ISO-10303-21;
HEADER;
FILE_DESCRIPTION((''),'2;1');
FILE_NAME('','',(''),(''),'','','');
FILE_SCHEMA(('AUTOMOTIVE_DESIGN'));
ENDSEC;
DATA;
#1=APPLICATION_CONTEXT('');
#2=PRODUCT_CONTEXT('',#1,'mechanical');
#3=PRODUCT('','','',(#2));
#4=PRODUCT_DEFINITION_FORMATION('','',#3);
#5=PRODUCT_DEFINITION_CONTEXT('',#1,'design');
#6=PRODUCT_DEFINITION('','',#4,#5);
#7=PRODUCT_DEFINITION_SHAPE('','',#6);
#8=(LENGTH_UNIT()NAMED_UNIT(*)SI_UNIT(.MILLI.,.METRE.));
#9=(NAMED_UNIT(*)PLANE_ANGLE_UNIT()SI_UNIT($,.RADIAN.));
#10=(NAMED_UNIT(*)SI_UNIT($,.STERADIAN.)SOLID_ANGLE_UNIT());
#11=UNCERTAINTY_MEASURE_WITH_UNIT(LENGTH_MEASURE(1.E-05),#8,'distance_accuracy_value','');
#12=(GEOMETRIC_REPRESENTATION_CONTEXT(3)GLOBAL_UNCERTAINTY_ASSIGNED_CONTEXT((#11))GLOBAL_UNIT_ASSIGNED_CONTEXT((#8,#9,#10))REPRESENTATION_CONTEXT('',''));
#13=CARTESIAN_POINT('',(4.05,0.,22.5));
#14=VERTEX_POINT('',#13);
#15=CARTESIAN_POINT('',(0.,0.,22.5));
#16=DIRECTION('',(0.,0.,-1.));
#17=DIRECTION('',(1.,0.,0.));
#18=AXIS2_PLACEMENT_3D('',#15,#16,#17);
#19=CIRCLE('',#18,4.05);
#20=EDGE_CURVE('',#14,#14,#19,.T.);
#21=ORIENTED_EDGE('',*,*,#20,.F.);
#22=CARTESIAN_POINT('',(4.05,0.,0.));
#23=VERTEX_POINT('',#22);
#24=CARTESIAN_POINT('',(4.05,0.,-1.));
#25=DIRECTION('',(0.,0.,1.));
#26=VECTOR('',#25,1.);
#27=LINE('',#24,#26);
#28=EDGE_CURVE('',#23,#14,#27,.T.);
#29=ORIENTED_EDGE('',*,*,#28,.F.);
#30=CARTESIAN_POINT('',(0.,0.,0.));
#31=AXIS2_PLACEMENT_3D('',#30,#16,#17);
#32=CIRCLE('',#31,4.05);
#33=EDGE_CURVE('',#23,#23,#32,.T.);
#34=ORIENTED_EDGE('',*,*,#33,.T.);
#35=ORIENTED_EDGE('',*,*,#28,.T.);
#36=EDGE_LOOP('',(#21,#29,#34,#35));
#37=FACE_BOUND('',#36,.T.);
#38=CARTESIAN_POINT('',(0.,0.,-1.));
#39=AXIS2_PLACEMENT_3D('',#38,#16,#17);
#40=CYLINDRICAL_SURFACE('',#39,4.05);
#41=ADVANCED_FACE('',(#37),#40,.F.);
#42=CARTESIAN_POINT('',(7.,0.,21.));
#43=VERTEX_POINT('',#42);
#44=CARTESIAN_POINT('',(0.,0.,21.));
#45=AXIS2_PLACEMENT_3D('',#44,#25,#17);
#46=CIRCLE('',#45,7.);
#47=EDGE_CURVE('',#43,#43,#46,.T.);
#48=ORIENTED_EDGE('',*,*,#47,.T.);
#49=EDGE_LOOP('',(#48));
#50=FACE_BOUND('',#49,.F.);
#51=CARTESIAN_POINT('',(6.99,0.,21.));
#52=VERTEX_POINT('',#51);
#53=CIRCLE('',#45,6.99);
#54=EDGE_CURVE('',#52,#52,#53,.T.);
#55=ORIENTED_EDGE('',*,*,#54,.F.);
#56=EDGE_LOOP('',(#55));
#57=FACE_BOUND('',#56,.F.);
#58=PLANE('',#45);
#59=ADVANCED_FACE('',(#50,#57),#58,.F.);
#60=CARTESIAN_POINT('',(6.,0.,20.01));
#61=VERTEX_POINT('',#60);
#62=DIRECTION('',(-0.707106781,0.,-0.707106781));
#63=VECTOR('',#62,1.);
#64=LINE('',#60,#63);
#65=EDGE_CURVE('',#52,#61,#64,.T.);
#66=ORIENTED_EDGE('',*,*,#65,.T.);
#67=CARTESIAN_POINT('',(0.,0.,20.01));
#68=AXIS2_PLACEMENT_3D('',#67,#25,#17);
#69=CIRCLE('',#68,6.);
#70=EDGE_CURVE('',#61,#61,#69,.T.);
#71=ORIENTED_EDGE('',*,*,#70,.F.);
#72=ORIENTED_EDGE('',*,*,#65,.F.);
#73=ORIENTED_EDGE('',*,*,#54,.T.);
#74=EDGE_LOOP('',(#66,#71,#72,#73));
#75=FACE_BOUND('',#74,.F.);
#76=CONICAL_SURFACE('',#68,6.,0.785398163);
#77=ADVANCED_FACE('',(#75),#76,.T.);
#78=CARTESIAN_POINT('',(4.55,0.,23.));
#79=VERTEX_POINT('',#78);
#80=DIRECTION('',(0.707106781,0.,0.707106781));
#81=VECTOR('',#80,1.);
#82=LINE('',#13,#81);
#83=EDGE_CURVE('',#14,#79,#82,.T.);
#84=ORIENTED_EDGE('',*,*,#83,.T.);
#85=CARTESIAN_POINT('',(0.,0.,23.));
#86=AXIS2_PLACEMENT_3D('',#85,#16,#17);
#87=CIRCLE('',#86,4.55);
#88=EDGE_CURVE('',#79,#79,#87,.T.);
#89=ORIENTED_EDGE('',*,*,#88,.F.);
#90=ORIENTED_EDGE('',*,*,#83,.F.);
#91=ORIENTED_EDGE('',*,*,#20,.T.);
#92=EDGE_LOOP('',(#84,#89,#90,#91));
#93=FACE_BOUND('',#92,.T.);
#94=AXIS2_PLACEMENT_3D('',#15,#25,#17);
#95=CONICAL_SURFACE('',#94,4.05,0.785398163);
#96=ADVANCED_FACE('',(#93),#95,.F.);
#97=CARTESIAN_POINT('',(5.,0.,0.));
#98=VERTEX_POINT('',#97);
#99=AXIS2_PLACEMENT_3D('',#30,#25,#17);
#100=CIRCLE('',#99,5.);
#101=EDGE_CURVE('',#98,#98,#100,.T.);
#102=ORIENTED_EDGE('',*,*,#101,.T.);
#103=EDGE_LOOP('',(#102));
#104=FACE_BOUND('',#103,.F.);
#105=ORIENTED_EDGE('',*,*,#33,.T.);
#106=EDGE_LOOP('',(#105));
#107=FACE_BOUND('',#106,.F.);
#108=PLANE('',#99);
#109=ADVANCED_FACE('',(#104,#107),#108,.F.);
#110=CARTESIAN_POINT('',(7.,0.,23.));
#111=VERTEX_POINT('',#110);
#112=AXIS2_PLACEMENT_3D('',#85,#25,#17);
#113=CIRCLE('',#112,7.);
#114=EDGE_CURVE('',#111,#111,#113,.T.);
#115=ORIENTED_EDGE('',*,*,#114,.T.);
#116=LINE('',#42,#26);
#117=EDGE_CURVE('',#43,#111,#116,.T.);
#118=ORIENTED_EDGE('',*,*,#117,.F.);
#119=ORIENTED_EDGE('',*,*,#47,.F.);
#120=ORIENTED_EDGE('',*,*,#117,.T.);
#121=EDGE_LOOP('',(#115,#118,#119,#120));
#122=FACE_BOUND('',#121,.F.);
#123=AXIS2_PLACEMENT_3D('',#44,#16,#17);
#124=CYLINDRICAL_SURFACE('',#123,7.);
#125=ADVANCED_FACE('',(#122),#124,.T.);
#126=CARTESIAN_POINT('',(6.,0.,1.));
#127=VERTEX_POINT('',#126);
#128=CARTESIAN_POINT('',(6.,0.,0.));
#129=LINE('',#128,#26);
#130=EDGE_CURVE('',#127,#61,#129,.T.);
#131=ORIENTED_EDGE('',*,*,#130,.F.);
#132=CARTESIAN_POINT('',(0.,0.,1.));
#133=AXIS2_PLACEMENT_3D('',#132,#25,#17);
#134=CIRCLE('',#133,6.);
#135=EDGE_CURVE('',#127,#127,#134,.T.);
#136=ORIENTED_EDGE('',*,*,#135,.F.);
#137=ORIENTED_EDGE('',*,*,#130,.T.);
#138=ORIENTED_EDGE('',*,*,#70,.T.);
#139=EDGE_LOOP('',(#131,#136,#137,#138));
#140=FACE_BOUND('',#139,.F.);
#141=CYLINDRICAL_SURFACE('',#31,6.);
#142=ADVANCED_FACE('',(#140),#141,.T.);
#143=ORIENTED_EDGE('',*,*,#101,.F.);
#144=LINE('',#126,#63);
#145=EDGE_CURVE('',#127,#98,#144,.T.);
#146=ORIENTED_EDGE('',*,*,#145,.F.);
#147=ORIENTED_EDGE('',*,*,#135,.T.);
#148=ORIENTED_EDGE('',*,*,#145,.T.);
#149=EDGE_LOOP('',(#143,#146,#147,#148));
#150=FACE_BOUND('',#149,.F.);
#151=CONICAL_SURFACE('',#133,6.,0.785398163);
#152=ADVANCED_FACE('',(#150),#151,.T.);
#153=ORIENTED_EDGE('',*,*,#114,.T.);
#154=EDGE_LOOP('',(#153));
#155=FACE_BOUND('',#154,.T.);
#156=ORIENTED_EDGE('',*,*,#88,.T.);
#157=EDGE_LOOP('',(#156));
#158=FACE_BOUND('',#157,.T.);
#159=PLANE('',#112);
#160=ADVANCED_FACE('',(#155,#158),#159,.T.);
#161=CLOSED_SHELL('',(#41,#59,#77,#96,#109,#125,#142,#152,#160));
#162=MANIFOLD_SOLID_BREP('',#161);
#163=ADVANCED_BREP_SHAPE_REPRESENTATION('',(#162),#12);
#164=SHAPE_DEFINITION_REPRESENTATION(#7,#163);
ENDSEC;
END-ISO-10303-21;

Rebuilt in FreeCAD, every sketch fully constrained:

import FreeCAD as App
import Part
import Sketcher


def edges_at(feature, points):
    """Names of the edges that pass closest to the given points."""
    edges = feature.Shape.Edges
    near = lambda p: min(range(len(edges)), key=lambda i: edges[i].distToShape(Part.Vertex(*p))[0])
    return sorted({f"Edge{near(p) + 1}" for p in points})

doc = App.newDocument("Part")
body = doc.addObject("PartDesign::Body", "Body")

sketch1 = body.newObject("Sketcher::SketchObject", "Sketch")
sketch1.AttachmentSupport = (doc.getObject("XY_Plane"), [""])
sketch1.MapMode = "FlatFace"
sketch1.AttachmentOffset = App.Placement(App.Vector(0, 0, -1), App.Rotation())
sketch1.addGeometry(Part.Circle(App.Vector(0, 0, 0), App.Vector(0, 0, 1), 4), False)
sketch1.addConstraint([
    Sketcher.Constraint("Coincident", 0, 3, -1, 1),
    Sketcher.Constraint("Diameter", 0, 8.1),
])
pad1 = body.newObject("PartDesign::Pad", "Pad")
pad1.Profile = sketch1
pad1.Length = 28
body2 = doc.addObject("PartDesign::Body", "Body001")

sketch2 = body2.newObject("Sketcher::SketchObject", "Sketch001")
sketch2.AttachmentSupport = (doc.getObject("XY_Plane001"), [""])
sketch2.MapMode = "FlatFace"
sketch2.addGeometry(Part.Circle(App.Vector(0, 0, 0), App.Vector(0, 0, 1), 6), False)
sketch2.addConstraint([
    Sketcher.Constraint("Coincident", 0, 3, -1, 1),
    Sketcher.Constraint("Diameter", 0, 12.0),
])
pad2 = body2.newObject("PartDesign::Pad", "Pad001")
pad2.Profile = sketch2
pad2.Length = 21

sketch3 = body2.newObject("Sketcher::SketchObject", "Sketch002")
sketch3.AttachmentSupport = (doc.getObject("XY_Plane001"), [""])
sketch3.MapMode = "FlatFace"
sketch3.AttachmentOffset = App.Placement(App.Vector(0, 0, 21), App.Rotation())
sketch3.addGeometry(Part.Circle(App.Vector(0, 0, 0), App.Vector(0, 0, 1), 7), False)
sketch3.addConstraint([
    Sketcher.Constraint("Coincident", 0, 3, -1, 1),
    Sketcher.Constraint("Diameter", 0, 14.0),
])
pad3 = body2.newObject("PartDesign::Pad", "Pad002")
pad3.Profile = sketch3
pad3.Length = 2
doc.recompute()

boolean = body2.newObject("PartDesign::Boolean", "Boolean")
boolean.Type = "Cut"
boolean.addObjects([body])
doc.recompute()

chamfer = body2.newObject("PartDesign::Chamfer", "Chamfer")
chamfer.Base = (boolean, edges_at(boolean, [(-6, 0, 21)]))
chamfer.Size = 0.99
doc.recompute()

chamfer2 = body2.newObject("PartDesign::Chamfer", "Chamfer001")
chamfer2.Base = (chamfer, edges_at(chamfer, [(-6, 0, 0)]))
chamfer2.Size = 1
doc.recompute()

chamfer3 = body2.newObject("PartDesign::Chamfer", "Chamfer002")
chamfer3.Base = (chamfer2, edges_at(chamfer2, [(-4.05, 0, 23)]))
chamfer3.Size = 0.5

doc.recompute()
